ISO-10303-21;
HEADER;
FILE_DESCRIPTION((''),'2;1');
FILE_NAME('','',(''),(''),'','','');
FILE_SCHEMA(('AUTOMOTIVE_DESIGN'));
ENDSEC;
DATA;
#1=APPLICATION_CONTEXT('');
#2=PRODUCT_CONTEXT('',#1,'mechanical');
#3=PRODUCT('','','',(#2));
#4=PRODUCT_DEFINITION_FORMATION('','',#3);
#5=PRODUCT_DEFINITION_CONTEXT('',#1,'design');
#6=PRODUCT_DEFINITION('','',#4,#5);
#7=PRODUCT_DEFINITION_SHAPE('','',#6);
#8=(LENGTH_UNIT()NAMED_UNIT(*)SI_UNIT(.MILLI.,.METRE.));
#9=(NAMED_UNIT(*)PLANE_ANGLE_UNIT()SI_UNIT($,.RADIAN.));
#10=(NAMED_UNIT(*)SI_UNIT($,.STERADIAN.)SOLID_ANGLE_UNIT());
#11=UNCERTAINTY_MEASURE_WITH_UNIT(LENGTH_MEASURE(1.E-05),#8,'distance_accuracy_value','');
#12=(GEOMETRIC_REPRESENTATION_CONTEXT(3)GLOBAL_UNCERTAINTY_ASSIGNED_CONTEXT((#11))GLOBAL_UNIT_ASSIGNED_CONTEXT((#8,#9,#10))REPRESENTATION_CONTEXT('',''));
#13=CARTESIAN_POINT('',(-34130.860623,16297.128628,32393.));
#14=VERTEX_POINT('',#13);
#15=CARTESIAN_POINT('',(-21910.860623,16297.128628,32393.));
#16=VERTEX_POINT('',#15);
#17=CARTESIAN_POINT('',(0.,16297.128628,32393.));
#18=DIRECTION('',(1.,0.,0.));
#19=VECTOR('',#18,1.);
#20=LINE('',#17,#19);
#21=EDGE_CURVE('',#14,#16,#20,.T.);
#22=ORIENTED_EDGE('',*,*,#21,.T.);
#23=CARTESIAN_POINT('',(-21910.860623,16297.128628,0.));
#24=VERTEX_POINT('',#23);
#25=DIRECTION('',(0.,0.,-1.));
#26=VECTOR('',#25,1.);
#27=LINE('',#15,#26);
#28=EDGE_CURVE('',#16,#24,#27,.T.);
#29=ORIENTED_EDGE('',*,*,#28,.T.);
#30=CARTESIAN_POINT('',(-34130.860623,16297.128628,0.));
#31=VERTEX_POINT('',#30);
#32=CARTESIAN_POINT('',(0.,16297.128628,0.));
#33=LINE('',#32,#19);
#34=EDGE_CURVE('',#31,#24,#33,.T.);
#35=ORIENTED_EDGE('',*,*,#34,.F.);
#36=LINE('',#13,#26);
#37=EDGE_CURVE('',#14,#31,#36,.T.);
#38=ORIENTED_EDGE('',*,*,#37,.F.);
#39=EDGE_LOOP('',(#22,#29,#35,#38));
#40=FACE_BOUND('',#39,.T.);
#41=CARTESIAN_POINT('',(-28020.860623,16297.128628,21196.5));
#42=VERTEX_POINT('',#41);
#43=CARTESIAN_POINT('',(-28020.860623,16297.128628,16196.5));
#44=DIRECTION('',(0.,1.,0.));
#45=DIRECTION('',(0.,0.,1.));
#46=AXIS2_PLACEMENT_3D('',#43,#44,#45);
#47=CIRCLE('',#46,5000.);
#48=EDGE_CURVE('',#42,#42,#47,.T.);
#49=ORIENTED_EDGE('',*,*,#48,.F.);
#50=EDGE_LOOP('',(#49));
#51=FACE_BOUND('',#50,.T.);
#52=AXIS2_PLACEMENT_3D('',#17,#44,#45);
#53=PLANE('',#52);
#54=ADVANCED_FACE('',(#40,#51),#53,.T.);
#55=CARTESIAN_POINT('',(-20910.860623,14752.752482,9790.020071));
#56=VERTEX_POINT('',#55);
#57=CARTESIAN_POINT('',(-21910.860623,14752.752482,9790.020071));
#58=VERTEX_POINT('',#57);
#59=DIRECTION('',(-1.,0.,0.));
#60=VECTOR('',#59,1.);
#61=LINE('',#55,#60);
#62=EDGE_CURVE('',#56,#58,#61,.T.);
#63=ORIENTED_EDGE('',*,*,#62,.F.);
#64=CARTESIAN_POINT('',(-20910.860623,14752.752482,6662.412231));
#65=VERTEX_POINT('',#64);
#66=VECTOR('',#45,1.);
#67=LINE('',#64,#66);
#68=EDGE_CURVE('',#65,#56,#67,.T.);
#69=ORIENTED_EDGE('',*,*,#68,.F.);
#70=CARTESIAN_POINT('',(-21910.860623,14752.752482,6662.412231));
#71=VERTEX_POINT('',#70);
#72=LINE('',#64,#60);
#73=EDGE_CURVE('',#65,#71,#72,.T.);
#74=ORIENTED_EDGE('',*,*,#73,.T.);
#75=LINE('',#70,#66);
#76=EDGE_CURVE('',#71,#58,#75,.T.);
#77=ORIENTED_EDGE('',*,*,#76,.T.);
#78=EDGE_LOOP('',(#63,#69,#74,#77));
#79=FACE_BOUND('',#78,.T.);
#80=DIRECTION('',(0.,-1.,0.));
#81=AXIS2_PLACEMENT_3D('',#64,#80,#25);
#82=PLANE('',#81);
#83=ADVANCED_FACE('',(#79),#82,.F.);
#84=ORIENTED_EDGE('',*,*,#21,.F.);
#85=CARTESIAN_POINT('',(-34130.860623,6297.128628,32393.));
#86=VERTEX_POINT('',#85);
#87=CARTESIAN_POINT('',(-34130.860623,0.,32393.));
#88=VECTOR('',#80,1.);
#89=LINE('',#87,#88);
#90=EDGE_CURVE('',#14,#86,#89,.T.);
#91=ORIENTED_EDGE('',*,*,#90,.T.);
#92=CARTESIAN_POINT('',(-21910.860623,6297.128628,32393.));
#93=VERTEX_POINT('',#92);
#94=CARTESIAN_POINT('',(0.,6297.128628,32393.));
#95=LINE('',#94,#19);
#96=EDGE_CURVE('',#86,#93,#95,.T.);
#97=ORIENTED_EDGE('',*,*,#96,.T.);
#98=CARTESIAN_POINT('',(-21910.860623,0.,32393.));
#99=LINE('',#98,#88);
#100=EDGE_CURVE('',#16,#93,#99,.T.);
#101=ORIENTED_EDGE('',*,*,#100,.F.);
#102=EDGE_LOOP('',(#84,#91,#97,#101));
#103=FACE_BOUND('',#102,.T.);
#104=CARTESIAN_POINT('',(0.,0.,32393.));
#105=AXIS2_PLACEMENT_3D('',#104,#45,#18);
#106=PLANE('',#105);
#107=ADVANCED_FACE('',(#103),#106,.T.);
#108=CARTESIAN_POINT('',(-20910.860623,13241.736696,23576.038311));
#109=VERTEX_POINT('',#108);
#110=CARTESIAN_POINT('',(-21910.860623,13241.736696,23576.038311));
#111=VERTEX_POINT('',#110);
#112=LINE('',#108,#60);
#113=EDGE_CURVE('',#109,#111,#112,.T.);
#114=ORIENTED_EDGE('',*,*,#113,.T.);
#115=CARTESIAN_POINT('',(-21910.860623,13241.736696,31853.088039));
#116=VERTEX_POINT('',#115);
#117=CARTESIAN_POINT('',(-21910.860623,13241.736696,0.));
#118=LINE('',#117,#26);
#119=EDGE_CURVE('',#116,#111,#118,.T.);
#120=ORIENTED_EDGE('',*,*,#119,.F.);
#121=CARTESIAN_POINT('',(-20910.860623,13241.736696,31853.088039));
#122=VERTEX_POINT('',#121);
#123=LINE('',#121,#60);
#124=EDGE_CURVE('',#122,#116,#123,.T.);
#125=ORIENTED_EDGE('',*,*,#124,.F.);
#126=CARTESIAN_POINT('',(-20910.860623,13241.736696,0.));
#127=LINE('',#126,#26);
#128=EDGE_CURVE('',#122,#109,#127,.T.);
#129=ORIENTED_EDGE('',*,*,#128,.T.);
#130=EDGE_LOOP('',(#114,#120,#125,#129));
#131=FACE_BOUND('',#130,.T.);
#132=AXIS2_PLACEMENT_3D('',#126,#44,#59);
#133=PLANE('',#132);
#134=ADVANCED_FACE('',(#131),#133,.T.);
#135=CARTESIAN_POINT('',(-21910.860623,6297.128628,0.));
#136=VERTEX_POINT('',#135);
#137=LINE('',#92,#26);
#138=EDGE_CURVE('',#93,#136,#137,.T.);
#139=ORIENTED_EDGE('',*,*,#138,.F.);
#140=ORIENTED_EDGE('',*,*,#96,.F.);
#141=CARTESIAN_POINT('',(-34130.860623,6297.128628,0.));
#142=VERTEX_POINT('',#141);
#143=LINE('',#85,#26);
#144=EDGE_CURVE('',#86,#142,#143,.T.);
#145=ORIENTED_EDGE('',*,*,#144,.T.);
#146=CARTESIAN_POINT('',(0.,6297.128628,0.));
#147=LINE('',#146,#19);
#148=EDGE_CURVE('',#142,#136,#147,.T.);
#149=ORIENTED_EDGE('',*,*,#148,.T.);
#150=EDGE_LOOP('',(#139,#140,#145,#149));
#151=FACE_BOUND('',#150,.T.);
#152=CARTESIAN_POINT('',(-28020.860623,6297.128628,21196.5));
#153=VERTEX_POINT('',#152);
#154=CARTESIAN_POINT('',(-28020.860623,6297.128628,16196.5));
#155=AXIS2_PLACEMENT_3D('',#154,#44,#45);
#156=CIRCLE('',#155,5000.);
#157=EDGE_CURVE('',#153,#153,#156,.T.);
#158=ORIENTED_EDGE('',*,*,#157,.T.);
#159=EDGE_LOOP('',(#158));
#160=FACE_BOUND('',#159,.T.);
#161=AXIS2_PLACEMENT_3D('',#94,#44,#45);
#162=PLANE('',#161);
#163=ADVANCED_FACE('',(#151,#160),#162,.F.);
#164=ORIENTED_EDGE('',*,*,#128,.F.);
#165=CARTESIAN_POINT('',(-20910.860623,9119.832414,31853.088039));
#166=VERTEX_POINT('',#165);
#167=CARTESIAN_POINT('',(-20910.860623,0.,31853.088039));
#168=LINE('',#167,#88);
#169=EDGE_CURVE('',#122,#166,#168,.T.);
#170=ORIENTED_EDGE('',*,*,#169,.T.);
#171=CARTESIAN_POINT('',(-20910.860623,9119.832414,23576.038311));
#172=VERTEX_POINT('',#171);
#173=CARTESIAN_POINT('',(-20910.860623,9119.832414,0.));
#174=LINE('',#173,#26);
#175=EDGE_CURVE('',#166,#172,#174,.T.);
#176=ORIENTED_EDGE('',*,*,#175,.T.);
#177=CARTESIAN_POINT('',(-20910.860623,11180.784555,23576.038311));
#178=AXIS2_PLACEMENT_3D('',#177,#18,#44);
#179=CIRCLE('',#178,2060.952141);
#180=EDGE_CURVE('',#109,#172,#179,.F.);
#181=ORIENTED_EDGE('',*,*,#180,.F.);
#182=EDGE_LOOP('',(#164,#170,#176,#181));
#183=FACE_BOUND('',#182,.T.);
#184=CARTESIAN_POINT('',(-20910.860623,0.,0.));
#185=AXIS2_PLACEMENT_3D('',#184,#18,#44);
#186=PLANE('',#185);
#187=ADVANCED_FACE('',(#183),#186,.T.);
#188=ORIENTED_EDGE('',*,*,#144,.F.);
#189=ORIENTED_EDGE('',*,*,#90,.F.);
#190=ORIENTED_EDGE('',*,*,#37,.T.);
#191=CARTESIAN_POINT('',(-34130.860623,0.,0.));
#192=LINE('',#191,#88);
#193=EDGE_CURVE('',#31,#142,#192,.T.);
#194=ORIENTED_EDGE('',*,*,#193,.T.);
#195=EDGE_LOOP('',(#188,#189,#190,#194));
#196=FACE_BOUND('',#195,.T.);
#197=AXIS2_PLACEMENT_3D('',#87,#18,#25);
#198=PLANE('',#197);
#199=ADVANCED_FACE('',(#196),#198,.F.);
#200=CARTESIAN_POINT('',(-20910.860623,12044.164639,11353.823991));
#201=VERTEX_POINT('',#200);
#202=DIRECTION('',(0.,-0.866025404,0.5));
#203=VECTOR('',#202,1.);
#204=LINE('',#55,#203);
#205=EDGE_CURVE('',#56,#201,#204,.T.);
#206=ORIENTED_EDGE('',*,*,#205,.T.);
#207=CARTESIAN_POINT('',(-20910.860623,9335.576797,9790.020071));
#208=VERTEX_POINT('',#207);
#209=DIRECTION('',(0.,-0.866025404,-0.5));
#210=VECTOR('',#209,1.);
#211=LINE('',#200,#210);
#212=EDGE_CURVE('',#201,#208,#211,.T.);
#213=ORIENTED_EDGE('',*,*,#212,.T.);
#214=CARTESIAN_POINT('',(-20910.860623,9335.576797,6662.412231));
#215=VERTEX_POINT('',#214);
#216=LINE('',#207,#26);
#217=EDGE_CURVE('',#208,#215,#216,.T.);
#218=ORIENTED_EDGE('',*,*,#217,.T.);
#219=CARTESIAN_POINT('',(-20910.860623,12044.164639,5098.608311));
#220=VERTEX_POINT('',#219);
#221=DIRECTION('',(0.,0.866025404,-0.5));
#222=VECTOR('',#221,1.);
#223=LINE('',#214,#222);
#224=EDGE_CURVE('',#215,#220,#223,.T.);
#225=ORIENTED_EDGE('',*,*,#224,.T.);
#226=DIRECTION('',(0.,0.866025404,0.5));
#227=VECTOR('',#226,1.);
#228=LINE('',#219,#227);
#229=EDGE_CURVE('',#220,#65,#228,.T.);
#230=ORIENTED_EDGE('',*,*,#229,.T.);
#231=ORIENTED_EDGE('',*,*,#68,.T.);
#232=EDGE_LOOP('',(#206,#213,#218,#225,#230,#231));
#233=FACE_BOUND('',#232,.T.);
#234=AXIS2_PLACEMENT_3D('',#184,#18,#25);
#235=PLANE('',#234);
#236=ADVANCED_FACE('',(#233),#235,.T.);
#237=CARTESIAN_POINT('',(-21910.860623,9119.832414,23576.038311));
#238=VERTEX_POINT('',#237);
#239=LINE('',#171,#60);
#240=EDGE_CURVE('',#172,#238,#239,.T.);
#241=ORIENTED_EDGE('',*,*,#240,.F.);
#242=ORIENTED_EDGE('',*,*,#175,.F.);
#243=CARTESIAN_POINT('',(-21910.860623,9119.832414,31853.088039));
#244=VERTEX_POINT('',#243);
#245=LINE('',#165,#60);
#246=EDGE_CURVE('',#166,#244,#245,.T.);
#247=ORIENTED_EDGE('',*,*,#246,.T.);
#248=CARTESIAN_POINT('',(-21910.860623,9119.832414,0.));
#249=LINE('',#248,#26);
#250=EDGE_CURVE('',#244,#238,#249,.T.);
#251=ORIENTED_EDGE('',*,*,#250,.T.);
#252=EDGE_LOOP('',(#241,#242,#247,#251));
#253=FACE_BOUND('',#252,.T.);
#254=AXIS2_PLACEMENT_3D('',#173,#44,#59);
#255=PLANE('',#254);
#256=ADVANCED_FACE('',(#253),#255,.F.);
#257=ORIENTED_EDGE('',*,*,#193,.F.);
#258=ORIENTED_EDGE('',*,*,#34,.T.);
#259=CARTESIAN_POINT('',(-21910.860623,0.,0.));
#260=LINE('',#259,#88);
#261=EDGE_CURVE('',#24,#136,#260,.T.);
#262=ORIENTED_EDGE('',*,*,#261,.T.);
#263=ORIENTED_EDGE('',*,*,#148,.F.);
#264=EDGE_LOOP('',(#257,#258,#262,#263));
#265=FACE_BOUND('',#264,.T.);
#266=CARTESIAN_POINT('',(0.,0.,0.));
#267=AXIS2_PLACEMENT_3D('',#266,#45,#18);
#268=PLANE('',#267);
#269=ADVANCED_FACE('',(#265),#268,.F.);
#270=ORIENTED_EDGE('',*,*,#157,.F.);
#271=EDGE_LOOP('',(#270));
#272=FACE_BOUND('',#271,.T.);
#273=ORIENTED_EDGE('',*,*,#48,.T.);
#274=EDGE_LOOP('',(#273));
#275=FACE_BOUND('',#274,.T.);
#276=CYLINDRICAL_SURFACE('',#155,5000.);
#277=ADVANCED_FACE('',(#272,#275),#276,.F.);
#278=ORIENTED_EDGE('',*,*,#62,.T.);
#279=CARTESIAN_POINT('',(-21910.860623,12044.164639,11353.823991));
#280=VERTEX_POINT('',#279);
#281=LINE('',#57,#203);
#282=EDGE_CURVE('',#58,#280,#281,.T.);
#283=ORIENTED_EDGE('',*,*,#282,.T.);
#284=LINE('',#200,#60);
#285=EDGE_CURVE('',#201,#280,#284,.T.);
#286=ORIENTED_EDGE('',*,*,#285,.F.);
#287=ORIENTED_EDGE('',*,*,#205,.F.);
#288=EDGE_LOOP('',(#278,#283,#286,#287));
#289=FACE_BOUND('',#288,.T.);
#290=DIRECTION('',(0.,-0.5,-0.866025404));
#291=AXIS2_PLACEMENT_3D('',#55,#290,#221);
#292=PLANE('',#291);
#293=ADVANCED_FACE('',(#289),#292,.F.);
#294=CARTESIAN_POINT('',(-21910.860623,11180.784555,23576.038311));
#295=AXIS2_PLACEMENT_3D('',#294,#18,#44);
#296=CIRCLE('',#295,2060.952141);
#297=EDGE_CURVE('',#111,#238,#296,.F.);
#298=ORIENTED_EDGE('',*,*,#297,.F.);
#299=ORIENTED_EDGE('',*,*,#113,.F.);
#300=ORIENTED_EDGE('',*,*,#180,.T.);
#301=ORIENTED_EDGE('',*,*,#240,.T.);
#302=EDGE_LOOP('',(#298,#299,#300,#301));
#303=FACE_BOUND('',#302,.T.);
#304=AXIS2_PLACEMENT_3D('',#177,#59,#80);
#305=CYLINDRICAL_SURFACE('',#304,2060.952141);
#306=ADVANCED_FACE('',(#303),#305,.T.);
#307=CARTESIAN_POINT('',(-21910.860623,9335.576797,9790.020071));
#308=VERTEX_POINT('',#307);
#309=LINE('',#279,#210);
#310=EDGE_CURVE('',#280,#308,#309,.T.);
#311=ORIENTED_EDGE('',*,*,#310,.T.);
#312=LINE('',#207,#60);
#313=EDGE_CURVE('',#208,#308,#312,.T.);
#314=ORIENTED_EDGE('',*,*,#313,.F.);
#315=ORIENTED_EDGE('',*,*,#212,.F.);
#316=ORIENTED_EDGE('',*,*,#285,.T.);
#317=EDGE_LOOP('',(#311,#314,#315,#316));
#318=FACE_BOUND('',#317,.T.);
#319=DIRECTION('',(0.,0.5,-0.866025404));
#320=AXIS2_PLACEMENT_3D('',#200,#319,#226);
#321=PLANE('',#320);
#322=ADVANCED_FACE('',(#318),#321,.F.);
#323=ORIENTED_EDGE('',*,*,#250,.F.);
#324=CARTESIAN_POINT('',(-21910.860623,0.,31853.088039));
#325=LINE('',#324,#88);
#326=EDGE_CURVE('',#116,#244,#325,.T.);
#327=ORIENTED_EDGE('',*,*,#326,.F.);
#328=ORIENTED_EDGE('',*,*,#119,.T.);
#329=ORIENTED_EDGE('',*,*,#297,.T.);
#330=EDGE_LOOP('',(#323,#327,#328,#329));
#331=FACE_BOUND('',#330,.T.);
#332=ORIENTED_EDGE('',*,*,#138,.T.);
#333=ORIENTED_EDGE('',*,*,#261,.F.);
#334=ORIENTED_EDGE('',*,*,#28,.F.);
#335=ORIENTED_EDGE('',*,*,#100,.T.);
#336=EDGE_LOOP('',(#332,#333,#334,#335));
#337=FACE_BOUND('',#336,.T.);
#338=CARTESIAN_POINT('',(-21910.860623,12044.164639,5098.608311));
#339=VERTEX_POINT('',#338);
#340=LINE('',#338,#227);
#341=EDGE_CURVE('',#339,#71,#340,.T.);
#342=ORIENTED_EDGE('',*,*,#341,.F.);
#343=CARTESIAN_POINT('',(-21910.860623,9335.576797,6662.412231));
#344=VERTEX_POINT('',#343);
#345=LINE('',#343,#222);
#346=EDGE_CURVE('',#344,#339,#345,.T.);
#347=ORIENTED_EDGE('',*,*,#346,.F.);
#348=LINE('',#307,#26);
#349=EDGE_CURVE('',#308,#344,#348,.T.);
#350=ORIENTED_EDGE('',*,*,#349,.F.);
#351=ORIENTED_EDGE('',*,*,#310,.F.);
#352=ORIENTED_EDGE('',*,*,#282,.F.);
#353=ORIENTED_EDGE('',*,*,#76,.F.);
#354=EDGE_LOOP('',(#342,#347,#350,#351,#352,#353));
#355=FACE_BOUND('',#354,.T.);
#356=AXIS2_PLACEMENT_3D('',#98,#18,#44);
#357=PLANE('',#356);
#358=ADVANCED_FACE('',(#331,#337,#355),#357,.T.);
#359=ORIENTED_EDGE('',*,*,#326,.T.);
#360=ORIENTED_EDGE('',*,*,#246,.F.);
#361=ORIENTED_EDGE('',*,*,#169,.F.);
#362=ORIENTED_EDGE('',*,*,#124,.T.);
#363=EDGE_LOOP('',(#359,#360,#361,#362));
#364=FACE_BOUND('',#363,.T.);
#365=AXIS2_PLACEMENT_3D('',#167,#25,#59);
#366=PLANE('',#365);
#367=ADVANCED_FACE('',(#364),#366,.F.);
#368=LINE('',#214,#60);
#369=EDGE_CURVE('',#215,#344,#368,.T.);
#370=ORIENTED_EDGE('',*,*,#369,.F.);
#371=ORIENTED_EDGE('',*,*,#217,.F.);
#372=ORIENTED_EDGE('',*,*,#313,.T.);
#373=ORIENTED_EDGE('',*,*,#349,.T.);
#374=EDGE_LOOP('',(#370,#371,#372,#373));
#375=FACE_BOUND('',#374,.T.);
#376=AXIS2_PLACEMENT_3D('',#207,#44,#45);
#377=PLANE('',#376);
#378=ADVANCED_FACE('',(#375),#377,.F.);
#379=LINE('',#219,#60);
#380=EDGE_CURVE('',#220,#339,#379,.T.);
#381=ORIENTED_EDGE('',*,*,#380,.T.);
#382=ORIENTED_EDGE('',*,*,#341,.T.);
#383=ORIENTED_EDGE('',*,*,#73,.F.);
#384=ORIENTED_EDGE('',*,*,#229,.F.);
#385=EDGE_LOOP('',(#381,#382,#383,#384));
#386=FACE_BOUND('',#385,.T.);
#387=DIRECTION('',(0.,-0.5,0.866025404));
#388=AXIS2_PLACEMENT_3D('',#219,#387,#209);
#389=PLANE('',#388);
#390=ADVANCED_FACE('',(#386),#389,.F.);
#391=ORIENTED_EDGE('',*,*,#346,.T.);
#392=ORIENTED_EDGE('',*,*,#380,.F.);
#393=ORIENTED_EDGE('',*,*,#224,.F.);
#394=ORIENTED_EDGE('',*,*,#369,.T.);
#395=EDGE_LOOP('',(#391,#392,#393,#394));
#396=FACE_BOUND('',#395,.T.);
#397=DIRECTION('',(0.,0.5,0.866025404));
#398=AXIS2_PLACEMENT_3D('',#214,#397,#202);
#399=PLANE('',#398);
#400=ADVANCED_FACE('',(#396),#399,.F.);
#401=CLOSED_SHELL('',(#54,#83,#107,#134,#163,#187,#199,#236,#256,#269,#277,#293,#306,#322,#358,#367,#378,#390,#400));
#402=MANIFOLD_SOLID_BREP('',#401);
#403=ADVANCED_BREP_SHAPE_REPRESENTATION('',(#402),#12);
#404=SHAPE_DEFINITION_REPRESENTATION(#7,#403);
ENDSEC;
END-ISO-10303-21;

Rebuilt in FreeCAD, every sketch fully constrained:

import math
import FreeCAD as App
import Part
import Sketcher
from FreeCAD import Vector
Q = App.Units.Quantity


def add_polygon(sketch, points):
    """Adds a closed chain of lines whose ends are joined by coincident constraints."""
    first, n = sketch.GeometryCount, len(points)
    for a, b in zip(points, points[1:] + points[:1]):
        sketch.addGeometry(Part.LineSegment(App.Vector(*a, 0), App.Vector(*b, 0)), False)
    for i in range(n):
        sketch.addConstraint(Sketcher.Constraint("Coincident", first + i, 2, first + (i + 1) % n, 1))

doc = App.newDocument("Part")
body = doc.addObject("PartDesign::Body", "Body")

sketch1 = doc.addObject("Sketcher::SketchObject", "Sketch")
body.addObject(sketch1)
sketch1.AttachmentSupport = (doc.XY_Plane, [""])
sketch1.MapMode = "FlatFace"
add_polygon(sketch1, [(-34131, 16297), (-34131, 6297), (-21911, 6297), (-21911, 16297)])
sketch1.addConstraint([
    Sketcher.Constraint("Vertical", 0),
    Sketcher.Constraint("Horizontal", 1),
    Sketcher.Constraint("Vertical", 2),
    Sketcher.Constraint("Horizontal", 3),
    Sketcher.Constraint("DistanceX", 1, 1, 1, 2, Q("12220 mm")),
    Sketcher.Constraint("DistanceY", 0, 2, 0, 1, Q("10000 mm")),
    Sketcher.Constraint("DistanceX", 0, 2, -1, 1, Q("34130.860623 mm")),
    Sketcher.Constraint("DistanceY", -1, 1, 0, 2, Q("6297.128628 mm")),
])
pad1 = doc.addObject("PartDesign::Pad", "Pad")
body.addObject(pad1)
pad1.Profile = sketch1
pad1.Length = 32393

sketch2 = doc.addObject("Sketcher::SketchObject", "Sketch001")
body.addObject(sketch2)
sketch2.AttachmentSupport = (doc.XZ_Plane, [""])
sketch2.MapMode = "FlatFace"
sketch2.AttachmentOffset = App.Placement(Vector(0, 0, -16297.128628), App.Rotation())
sketch2.addGeometry(Part.Circle(Vector(-28021, 16196, 0), Vector(0, 0, 1), 5000), False)
sketch2.addConstraint([
    Sketcher.Constraint("Diameter", 0, Q("10000 mm")),
    Sketcher.Constraint("DistanceY", -1, 1, 0, 3, Q("16196.5 mm")),
    Sketcher.Constraint("DistanceX", 0, 3, -1, 1, Q("28020.860623 mm")),
])
pocket1 = doc.addObject("PartDesign::Pocket", "Pocket")
body.addObject(pocket1)
pocket1.Profile = sketch2
pocket1.Type = "ThroughAll"
pocket1.Reversed = True

sketch3 = doc.addObject("Sketcher::SketchObject", "Sketch002")
body.addObject(sketch3)
sketch3.AttachmentSupport = (doc.YZ_Plane, [""])
sketch3.MapMode = "FlatFace"
sketch3.AttachmentOffset = App.Placement(Vector(0, 0, -21910.860623), App.Rotation())
sketch3.addGeometry([
    Part.LineSegment(Vector(13242, 31853, 0), Vector(9120, 31853, 0)),
    Part.LineSegment(Vector(9120, 31853, 0), Vector(9120, 23576, 0)),
    Part.ArcOfCircle(Part.Circle(Vector(11181, 23576, 0), Vector(0, 0, 1), 2061), math.radians(180), math.radians(360)),
    Part.LineSegment(Vector(13242, 23576, 0), Vector(13242, 31853, 0)),
], False)
sketch3.addConstraint([
    Sketcher.Constraint("Coincident", 0, 2, 1, 1),
    Sketcher.Constraint("Coincident", 1, 2, 2, 1),
    Sketcher.Constraint("Coincident", 2, 2, 3, 1),
    Sketcher.Constraint("Coincident", 3, 2, 0, 1),
    Sketcher.Constraint("Horizontal", 0),
    Sketcher.Constraint("Vertical", 1),
    Sketcher.Constraint("Vertical", 3),
    Sketcher.Constraint("Horizontal", 2, 3, 1, 2),
    Sketcher.Constraint("Equal", 1, 3),
    Sketcher.Constraint("Radius", 2, Q("2060.952141 mm")),
    Sketcher.Constraint("DistanceY", 1, 2, 1, 1, Q("8277.049728 mm")),
    Sketcher.Constraint("DistanceY", -1, 1, 2, 3, Q("23576.038311 mm")),
    Sketcher.Constraint("DistanceX", -1, 1, 2, 3, Q("11180.784555 mm")),
])
pad2 = doc.addObject("PartDesign::Pad", "Pad001")
body.addObject(pad2)
pad2.Profile = sketch3
pad2.Length = 1000

sketch4 = doc.addObject("Sketcher::SketchObject", "Sketch003")
body.addObject(sketch4)
sketch4.AttachmentSupport = (doc.YZ_Plane, [""])
sketch4.MapMode = "FlatFace"
sketch4.AttachmentOffset = App.Placement(Vector(0, 0, -21910.860623), App.Rotation())
add_polygon(sketch4, [(12044, 5099), (14753, 6662), (14753, 9790), (12044, 11354), (9336, 9790), (9336, 6662)])
sketch4.addConstraint([
    Sketcher.Constraint("Vertical", 1),
    Sketcher.Constraint("Vertical", 4),
    Sketcher.Constraint("Parallel", 0, 3),
    Sketcher.Constraint("Parallel", 2, 5),
    Sketcher.Constraint("Horizontal", 1, 2, 3, 2),
    Sketcher.Constraint("Horizontal", 0, 2, 4, 2),
    Sketcher.Constraint("Vertical", 2, 2, 5, 2),
    Sketcher.Constraint("Angle", 0, Q("30 deg")),
    Sketcher.Constraint("DistanceY", 1, 1, 1, 2, Q("3127.60784 mm")),
    Sketcher.Constraint("Distance", 0, Q("3127.60784 mm")),
    Sketcher.Constraint("DistanceX", -1, 1, 0, 2, Q("14752.752482 mm")),
    Sketcher.Constraint("DistanceY", -1, 1, 0, 2, Q("6662.412231 mm")),
])
pad3 = doc.addObject("PartDesign::Pad", "Pad002")
body.addObject(pad3)
pad3.Profile = sketch4
pad3.Length = 1000

doc.recompute()
